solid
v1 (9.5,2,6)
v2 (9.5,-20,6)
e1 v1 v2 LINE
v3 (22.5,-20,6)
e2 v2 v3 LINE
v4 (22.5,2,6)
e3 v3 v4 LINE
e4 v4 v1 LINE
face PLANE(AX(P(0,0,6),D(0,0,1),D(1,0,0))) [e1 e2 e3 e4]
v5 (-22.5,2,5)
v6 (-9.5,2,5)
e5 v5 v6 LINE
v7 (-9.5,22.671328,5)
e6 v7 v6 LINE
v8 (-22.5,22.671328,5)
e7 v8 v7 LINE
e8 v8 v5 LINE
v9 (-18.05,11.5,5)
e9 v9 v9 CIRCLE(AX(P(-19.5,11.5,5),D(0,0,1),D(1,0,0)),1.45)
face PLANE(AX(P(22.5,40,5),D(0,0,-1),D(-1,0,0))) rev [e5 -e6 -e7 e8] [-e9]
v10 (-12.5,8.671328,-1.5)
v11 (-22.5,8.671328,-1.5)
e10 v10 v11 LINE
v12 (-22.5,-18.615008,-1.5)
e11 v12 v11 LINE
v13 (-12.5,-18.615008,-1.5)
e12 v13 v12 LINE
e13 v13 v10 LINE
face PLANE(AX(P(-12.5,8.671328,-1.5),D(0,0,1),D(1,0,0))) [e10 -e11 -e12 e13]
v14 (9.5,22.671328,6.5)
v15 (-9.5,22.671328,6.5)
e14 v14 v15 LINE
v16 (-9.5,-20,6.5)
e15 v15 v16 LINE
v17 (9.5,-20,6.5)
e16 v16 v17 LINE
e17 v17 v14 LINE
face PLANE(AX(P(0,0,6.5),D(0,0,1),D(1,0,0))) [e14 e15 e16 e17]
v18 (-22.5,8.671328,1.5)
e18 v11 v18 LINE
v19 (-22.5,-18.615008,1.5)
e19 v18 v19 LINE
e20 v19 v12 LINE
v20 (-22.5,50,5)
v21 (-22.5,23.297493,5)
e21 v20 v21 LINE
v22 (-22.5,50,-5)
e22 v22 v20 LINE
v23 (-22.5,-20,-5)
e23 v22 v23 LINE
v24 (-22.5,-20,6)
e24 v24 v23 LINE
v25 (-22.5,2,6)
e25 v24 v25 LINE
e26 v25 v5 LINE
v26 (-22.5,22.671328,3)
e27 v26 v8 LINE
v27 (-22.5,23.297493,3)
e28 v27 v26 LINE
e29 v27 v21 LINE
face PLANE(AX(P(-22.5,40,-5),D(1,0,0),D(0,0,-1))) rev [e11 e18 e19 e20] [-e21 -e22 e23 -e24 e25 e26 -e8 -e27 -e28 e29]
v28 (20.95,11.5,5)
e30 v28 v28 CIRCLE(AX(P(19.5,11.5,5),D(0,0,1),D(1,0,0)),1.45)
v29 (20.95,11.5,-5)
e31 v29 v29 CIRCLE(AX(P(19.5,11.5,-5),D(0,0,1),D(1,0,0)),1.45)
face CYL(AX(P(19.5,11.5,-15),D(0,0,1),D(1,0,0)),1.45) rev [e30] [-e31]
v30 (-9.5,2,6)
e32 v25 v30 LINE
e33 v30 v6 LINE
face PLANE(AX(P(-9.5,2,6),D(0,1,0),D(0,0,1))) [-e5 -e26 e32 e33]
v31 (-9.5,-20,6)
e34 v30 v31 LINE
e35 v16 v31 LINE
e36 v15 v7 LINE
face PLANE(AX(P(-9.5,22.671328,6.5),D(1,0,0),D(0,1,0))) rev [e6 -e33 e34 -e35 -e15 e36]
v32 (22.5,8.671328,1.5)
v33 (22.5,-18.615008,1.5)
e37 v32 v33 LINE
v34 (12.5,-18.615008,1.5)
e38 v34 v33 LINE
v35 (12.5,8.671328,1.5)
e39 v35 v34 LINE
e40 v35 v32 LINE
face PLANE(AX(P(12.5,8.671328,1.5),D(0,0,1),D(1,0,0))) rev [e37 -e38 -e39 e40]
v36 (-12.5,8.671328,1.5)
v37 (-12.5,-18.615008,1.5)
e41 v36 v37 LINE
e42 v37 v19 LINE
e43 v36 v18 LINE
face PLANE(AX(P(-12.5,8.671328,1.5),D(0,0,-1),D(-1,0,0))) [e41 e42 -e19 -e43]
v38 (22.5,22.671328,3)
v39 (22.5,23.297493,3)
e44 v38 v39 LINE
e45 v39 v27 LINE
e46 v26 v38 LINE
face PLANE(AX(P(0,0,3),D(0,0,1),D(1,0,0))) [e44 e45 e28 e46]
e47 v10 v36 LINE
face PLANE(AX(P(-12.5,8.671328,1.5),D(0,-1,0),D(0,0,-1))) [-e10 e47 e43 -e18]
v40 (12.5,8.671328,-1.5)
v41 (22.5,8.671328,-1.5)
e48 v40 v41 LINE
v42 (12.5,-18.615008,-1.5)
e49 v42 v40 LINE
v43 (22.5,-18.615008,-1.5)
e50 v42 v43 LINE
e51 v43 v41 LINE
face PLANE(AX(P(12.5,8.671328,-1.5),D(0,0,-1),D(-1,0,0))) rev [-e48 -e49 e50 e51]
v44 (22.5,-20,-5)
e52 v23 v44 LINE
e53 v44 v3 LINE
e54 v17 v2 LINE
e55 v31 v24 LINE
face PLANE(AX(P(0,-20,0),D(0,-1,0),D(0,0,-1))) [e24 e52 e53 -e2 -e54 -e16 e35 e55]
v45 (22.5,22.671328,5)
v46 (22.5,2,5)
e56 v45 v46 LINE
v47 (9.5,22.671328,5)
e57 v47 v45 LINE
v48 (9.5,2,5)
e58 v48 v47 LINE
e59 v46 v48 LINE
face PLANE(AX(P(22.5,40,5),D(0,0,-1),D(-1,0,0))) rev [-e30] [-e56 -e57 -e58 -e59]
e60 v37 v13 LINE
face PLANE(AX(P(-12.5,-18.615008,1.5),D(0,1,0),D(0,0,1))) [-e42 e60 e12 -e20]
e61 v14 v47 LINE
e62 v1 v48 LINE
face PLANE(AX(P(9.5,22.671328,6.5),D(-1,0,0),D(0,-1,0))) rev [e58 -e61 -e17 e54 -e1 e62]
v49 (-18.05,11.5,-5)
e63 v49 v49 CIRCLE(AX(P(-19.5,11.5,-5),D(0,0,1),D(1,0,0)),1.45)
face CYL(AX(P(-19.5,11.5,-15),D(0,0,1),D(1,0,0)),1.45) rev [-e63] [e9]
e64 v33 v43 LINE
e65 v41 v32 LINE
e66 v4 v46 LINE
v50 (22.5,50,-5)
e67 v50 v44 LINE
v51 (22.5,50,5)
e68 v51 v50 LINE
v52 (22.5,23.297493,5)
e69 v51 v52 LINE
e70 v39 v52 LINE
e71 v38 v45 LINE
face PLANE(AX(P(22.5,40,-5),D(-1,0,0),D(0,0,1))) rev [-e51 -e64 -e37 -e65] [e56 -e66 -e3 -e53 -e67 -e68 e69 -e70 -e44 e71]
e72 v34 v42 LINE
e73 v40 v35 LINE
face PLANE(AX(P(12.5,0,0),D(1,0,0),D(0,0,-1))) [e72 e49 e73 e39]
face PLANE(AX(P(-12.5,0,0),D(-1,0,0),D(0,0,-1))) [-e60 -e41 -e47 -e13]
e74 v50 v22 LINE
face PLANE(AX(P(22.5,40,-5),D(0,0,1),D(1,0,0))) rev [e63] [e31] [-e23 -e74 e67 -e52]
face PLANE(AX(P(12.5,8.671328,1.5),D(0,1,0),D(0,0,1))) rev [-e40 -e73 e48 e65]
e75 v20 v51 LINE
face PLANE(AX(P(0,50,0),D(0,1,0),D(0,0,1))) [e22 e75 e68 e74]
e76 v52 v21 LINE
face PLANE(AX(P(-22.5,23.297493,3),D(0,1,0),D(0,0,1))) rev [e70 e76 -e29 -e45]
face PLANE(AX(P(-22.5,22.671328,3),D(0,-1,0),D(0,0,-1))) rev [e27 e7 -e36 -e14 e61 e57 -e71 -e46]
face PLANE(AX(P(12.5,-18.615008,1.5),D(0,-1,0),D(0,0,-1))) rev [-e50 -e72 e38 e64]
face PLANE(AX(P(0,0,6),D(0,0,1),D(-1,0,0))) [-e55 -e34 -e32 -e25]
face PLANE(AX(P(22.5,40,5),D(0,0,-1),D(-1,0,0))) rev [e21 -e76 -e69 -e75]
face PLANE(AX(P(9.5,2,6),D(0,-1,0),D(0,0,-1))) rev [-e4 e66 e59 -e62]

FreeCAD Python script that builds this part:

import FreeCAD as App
import Part
import Sketcher
from FreeCAD import Vector

doc = App.newDocument("Part")
body = doc.addObject("PartDesign::Body", "Body")

# Sketch on XZ plane
sketch1 = body.newObject("Sketcher::SketchObject", "Sketch")
sketch1.AttachmentSupport = (doc.getObject("XZ_Plane"), [""])
sketch1.MapMode = "FlatFace"
sketch1.addGeometry([
    Part.LineSegment(Vector(-22, -5, 0), Vector(-22, 5, 0)),
    Part.LineSegment(Vector(-22, 5, 0), Vector(22, 5, 0)),
    Part.LineSegment(Vector(22, 5, 0), Vector(22, -5, 0)),
    Part.LineSegment(Vector(22, -5, 0), Vector(-22, -5, 0)),
], False)
sketch1.addConstraint([
    Sketcher.Constraint("Coincident", 0, 2, 1, 1),
    Sketcher.Constraint("Coincident", 1, 2, 2, 1),
    Sketcher.Constraint("Coincident", 2, 2, 3, 1),
    Sketcher.Constraint("Coincident", 3, 2, 0, 1),
    Sketcher.Constraint("Vertical", 0),
    Sketcher.Constraint("Horizontal", 1),
    Sketcher.Constraint("Vertical", 2),
    Sketcher.Constraint("Horizontal", 3),
    Sketcher.Constraint("Symmetric", 0, 2, 2, 2, -1, 1),
    Sketcher.Constraint("DistanceX", 1, 1, 1, 2, 45.0),
    Sketcher.Constraint("DistanceY", 0, 1, 0, 2, 10.0),
])
pad1 = body.newObject("PartDesign::Pad", "Pad")
pad1.Profile = sketch1
pad1.Length = 40
pad1.Reversed = True

# Sketch on XZ plane
sketch2 = body.newObject("Sketcher::SketchObject", "Sketch001")
sketch2.AttachmentSupport = (doc.getObject("XZ_Plane"), [""])
sketch2.MapMode = "FlatFace"
sketch2.AttachmentOffset = App.Placement(Vector(0, 0, -40), App.Rotation())
sketch2.addGeometry([
    Part.LineSegment(Vector(-22, -5, 0), Vector(-22, 5, 0)),
    Part.LineSegment(Vector(-22, 5, 0), Vector(22, 5, 0)),
    Part.LineSegment(Vector(22, 5, 0), Vector(22, -5, 0)),
    Part.LineSegment(Vector(22, -5, 0), Vector(-22, -5, 0)),
], False)
sketch2.addConstraint([
    Sketcher.Constraint("Coincident", 0, 2, 1, 1),
    Sketcher.Constraint("Coincident", 1, 2, 2, 1),
    Sketcher.Constraint("Coincident", 2, 2, 3, 1),
    Sketcher.Constraint("Coincident", 3, 2, 0, 1),
    Sketcher.Constraint("Vertical", 0),
    Sketcher.Constraint("Horizontal", 1),
    Sketcher.Constraint("Vertical", 2),
    Sketcher.Constraint("Horizontal", 3),
    Sketcher.Constraint("Symmetric", 0, 2, 2, 2, -1, 1),
    Sketcher.Constraint("DistanceX", 1, 1, 1, 2, 45.0),
    Sketcher.Constraint("DistanceY", 0, 1, 0, 2, 10.0),
])
pad2 = body.newObject("PartDesign::Pad", "Pad001")
pad2.Profile = sketch2
pad2.Length = 10
pad2.Reversed = True

# Sketch on XZ plane
sketch3 = body.newObject("Sketcher::SketchObject", "Sketch002")
sketch3.AttachmentSupport = (doc.getObject("XZ_Plane"), [""])
sketch3.MapMode = "FlatFace"
sketch3.addGeometry([
    Part.LineSegment(Vector(-22, 5, 0), Vector(-22, -5, 0)),
    Part.LineSegment(Vector(-22, -5, 0), Vector(22, -5, 0)),
    Part.LineSegment(Vector(22, -5, 0), Vector(22, 5, 0)),
    Part.LineSegment(Vector(22, 5, 0), Vector(-22, 5, 0)),
], False)
sketch3.addConstraint([
    Sketcher.Constraint("Coincident", 0, 2, 1, 1),
    Sketcher.Constraint("Coincident", 1, 2, 2, 1),
    Sketcher.Constraint("Coincident", 2, 2, 3, 1),
    Sketcher.Constraint("Coincident", 3, 2, 0, 1),
    Sketcher.Constraint("Vertical", 0),
    Sketcher.Constraint("Horizontal", 1),
    Sketcher.Constraint("Vertical", 2),
    Sketcher.Constraint("Horizontal", 3),
    Sketcher.Constraint("Symmetric", 0, 2, 2, 2, -1, 1),
    Sketcher.Constraint("DistanceX", 1, 1, 1, 2, 45.0),
    Sketcher.Constraint("DistanceY", 0, 2, 0, 1, 10.0),
])
pad3 = body.newObject("PartDesign::Pad", "Pad002")
pad3.Profile = sketch3
pad3.Length = 20

# Sketch on XY plane
sketch4 = body.newObject("Sketcher::SketchObject", "Sketch003")
sketch4.AttachmentSupport = (doc.getObject("XY_Plane"), [""])
sketch4.MapMode = "FlatFace"
sketch4.AttachmentOffset = App.Placement(Vector(0, 0, 5), App.Rotation())
sketch4.addGeometry([
    Part.Circle(Vector(19.5, 11.5, 0), Vector(0, 0, 1), 1.4),
    Part.Circle(Vector(-19.5, 11.5, 0), Vector(0, 0, 1), 1.4),
], False)
sketch4.addConstraint([
    Sketcher.Constraint("Equal", 0, 1),
    Sketcher.Constraint("Symmetric", 0, 3, 1, 3, -2),
    Sketcher.Constraint("Diameter", 0, 2.9),
    Sketcher.Constraint("DistanceX", 1, 3, 0, 3, 39.0),
    Sketcher.Constraint("DistanceY", -1, 1, 0, 3, 11.5),
])
pocket1 = body.newObject("PartDesign::Pocket", "Pocket")
pocket1.Profile = sketch4
pocket1.Length = 20

# Sketch on XY plane
sketch5 = body.newObject("Sketcher::SketchObject", "Sketch004")
sketch5.AttachmentSupport = (doc.getObject("XY_Plane"), [""])
sketch5.MapMode = "FlatFace"
sketch5.AttachmentOffset = App.Placement(Vector(0, 0, 5), App.Rotation())
sketch5.addGeometry([
    Part.LineSegment(Vector(-22.5, 23.3, 0), Vector(-22.5, 22.7, 0)),
    Part.LineSegment(Vector(-22.5, 22.7, 0), Vector(22.5, 22.7, 0)),
    Part.LineSegment(Vector(22.5, 22.7, 0), Vector(22.5, 23.3, 0)),
    Part.LineSegment(Vector(22.5, 23.3, 0), Vector(-22.5, 23.3, 0)),
], False)
sketch5.addConstraint([
    Sketcher.Constraint("Coincident", 0, 2, 1, 1),
    Sketcher.Constraint("Coincident", 1, 2, 2, 1),
    Sketcher.Constraint("Coincident", 2, 2, 3, 1),
    Sketcher.Constraint("Coincident", 3, 2, 0, 1),
    Sketcher.Constraint("Vertical", 0),
    Sketcher.Constraint("Horizontal", 1),
    Sketcher.Constraint("Vertical", 2),
    Sketcher.Constraint("Horizontal", 3),
    Sketcher.Constraint("DistanceX", 1, 1, 1, 2, 45.0),
    Sketcher.Constraint("DistanceX", 0, 2, -1, 1, 22.5),
    Sketcher.Constraint("DistanceY", 0, 2, 0, 1, 0.626165),
    Sketcher.Constraint("DistanceY", -1, 1, 0, 2, 22.671328),
])
pocket2 = body.newObject("PartDesign::Pocket", "Pocket001")
pocket2.Profile = sketch5
pocket2.Length = 2

# Sketch on XY plane
sketch6 = body.newObject("Sketcher::SketchObject", "Sketch005")
sketch6.AttachmentSupport = (doc.getObject("XY_Plane"), [""])
sketch6.MapMode = "FlatFace"
sketch6.AttachmentOffset = App.Placement(Vector(0, 0, 5), App.Rotation())
sketch6.addGeometry([
    Part.LineSegment(Vector(-10, 23, 0), Vector(-10, -20, 0)),
    Part.LineSegment(Vector(-10, -20, 0), Vector(10, -20, 0)),
    Part.LineSegment(Vector(10, -20, 0), Vector(10, 23, 0)),
    Part.LineSegment(Vector(10, 23, 0), Vector(-10, 23, 0)),
], False)
sketch6.addConstraint([
    Sketcher.Constraint("Coincident", 0, 2, 1, 1),
    Sketcher.Constraint("Coincident", 1, 2, 2, 1),
    Sketcher.Constraint("Coincident", 2, 2, 3, 1),
    Sketcher.Constraint("Coincident", 3, 2, 0, 1),
    Sketcher.Constraint("Vertical", 0),
    Sketcher.Constraint("Horizontal", 1),
    Sketcher.Constraint("Vertical", 2),
    Sketcher.Constraint("Horizontal", 3),
    Sketcher.Constraint("DistanceX", 1, 1, 1, 2, 19.0),
    Sketcher.Constraint("DistanceY", 0, 2, -1, 1, 20.0),
    Sketcher.Constraint("DistanceX", 0, 2, -1, 1, 9.5),
    Sketcher.Constraint("DistanceY", 0, 2, 0, 1, 42.671328),
])
pad4 = body.newObject("PartDesign::Pad", "Pad003")
pad4.Profile = sketch6
pad4.Length = 1.5

# Sketch on YZ plane
sketch7 = body.newObject("Sketcher::SketchObject", "Sketch006")
sketch7.AttachmentSupport = (doc.getObject("YZ_Plane"), [""])
sketch7.MapMode = "FlatFace"
sketch7.AttachmentOffset = App.Placement(Vector(0, 0, 22.5), App.Rotation())
sketch7.addGeometry([
    Part.LineSegment(Vector(8.7, 1.5, 0), Vector(-18.6, 1.5, 0)),
    Part.LineSegment(Vector(-18.6, 1.5, 0), Vector(-18.6, -1.5, 0)),
    Part.LineSegment(Vector(-18.6, -1.5, 0), Vector(8.7, -1.5, 0)),
    Part.LineSegment(Vector(8.7, -1.5, 0), Vector(8.7, 1.5, 0)),
], False)
sketch7.addConstraint([
    Sketcher.Constraint("Coincident", 0, 2, 1, 1),
    Sketcher.Constraint("Coincident", 1, 2, 2, 1),
    Sketcher.Constraint("Coincident", 2, 2, 3, 1),
    Sketcher.Constraint("Coincident", 3, 2, 0, 1),
    Sketcher.Constraint("Horizontal", 0),
    Sketcher.Constraint("Vertical", 1),
    Sketcher.Constraint("Horizontal", 2),
    Sketcher.Constraint("Vertical", 3),
    Sketcher.Constraint("DistanceY", 1, 2, 1, 1, 3.0),
    Sketcher.Constraint("DistanceY", -1, 1, 0, 2, 1.5),
    Sketcher.Constraint("DistanceX", 0, 2, 0, 1, 27.286336),
    Sketcher.Constraint("DistanceX", 0, 2, -1, 1, 18.615008),
])
pocket3 = body.newObject("PartDesign::Pocket", "Pocket002")
pocket3.Profile = sketch7
pocket3.Length = 10

# Sketch on XY plane
sketch8 = body.newObject("Sketcher::SketchObject", "Sketch007")
sketch8.AttachmentSupport = (doc.getObject("XY_Plane"), [""])
sketch8.MapMode = "FlatFace"
sketch8.AttachmentOffset = App.Placement(Vector(0, 0, 5), App.Rotation())
sketch8.addGeometry([
    Part.LineSegment(Vector(10, 2, 0), Vector(10, -20, 0)),
    Part.LineSegment(Vector(10, -20, 0), Vector(22, -20, 0)),
    Part.LineSegment(Vector(22, -20, 0), Vector(22, 2, 0)),
    Part.LineSegment(Vector(22, 2, 0), Vector(10, 2, 0)),
], False)
sketch8.addConstraint([
    Sketcher.Constraint("Coincident", 0, 2, 1, 1),
    Sketcher.Constraint("Coincident", 1, 2, 2, 1),
    Sketcher.Constraint("Coincident", 2, 2, 3, 1),
    Sketcher.Constraint("Coincident", 3, 2, 0, 1),
    Sketcher.Constraint("Vertical", 0),
    Sketcher.Constraint("Horizontal", 1),
    Sketcher.Constraint("Vertical", 2),
    Sketcher.Constraint("Horizontal", 3),
    Sketcher.Constraint("DistanceX", 1, 1, 1, 2, 13.0),
    Sketcher.Constraint("DistanceY", 0, 2, 0, 1, 22.0),
    Sketcher.Constraint("DistanceY", 0, 2, -1, 1, 20.0),
    Sketcher.Constraint("DistanceX", -1, 1, 0, 2, 9.5),
])
pad5 = body.newObject("PartDesign::Pad", "Pad004")
pad5.Profile = sketch8
pad5.Length = 1
doc.recompute()

mirrored = body.newObject("PartDesign::Mirrored", "Mirrored")
mirrored.Originals = [pocket3]
mirrored.MirrorPlane = (doc.getObject("YZ_Plane"), [""])
body.Tip = mirrored
doc.recompute()

mirrored2 = body.newObject("PartDesign::Mirrored", "Mirrored001")
mirrored2.Originals = [pad5]
mirrored2.MirrorPlane = (doc.getObject("YZ_Plane"), [""])
body.Tip = mirrored2

doc.recompute()
